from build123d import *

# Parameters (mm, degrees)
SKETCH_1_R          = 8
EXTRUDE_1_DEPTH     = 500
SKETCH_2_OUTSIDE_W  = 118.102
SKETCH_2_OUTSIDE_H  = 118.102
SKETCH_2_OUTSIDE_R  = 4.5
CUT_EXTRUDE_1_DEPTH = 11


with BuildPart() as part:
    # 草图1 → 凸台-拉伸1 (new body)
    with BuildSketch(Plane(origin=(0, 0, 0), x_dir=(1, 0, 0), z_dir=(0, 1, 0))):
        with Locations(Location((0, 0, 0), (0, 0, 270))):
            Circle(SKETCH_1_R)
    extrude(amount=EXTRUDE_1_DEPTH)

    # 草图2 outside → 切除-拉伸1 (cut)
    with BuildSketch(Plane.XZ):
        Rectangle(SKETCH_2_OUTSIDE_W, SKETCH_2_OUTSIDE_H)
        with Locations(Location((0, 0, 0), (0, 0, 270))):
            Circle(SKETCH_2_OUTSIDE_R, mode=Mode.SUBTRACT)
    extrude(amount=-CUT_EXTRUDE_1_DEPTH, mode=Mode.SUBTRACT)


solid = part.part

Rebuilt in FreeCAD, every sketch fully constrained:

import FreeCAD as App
import Part
import Sketcher
Q = App.Units.Quantity


def add_polygon(sketch, points):
    """Adds a closed chain of lines whose ends are joined by coincident constraints."""
    first, n = sketch.GeometryCount, len(points)
    for a, b in zip(points, points[1:] + points[:1]):
        sketch.addGeometry(Part.LineSegment(App.Vector(*a, 0), App.Vector(*b, 0)), False)
    for i in range(n):
        sketch.addConstraint(Sketcher.Constraint("Coincident", first + i, 2, first + (i + 1) % n, 1))

doc = App.newDocument("Part")
params = doc.addObject("Spreadsheet::Sheet", "Params")
for row, (alias, value) in enumerate([
    ("sketch1_diameter", "16 mm"),
    ("pad1_length", "500 mm"),
    ("sketch2_diameter", "9 mm"),
    ("pocket1_length", "11 mm"),
], start=1):
    params.set(f"A{row}", alias)
    params.set(f"B{row}", "=" + value)
    params.setAlias(f"B{row}", alias)

body = doc.addObject("PartDesign::Body", "Body")

sketch1 = doc.addObject("Sketcher::SketchObject", "Sketch")
body.addObject(sketch1)
sketch1.AttachmentSupport = (doc.XZ_Plane, [""])
sketch1.MapMode = "FlatFace"
sketch1.addGeometry(Part.Circle(App.Vector(0, 0, 0), App.Vector(0, 0, 1), 8), False)
sketch1.addConstraint([
    Sketcher.Constraint("Coincident", 0, 3, -1, 1),
    Sketcher.Constraint("Diameter", 0, Q("16 mm")),
])
sketch1.setExpression("Constraints[1]", "Params.sketch1_diameter")
pad1 = doc.addObject("PartDesign::Pad", "Pad")
body.addObject(pad1)
pad1.Profile = sketch1
pad1.setExpression("Length", "Params.pad1_length")
pad1.Reversed = True

sketch2 = doc.addObject("Sketcher::SketchObject", "Sketch001")
body.addObject(sketch2)
sketch2.AttachmentSupport = (doc.XZ_Plane, [""])
sketch2.MapMode = "FlatFace"
add_polygon(sketch2, [(-59.1, 59.1), (-59.1, -59.1), (59.1, -59.1), (59.1, 59.1)])
sketch2.addGeometry(Part.Circle(App.Vector(0, 0, 0), App.Vector(0, 0, 1), 4.5), False)
sketch2.addConstraint([
    Sketcher.Constraint("Vertical", 0),
    Sketcher.Constraint("Horizontal", 1),
    Sketcher.Constraint("Vertical", 2),
    Sketcher.Constraint("Horizontal", 3),
    Sketcher.Constraint("Coincident", 4, 3, -1, 1),
    Sketcher.Constraint("Symmetric", 0, 2, 2, 2, -1, 1),
    Sketcher.Constraint("Equal", 3, 0),
    Sketcher.Constraint("Diameter", 4, Q("9 mm")),
    Sketcher.Constraint("DistanceX", 1, 1, 1, 2, Q("118.102 mm")),
])
sketch2.setExpression("Constraints[11]", "Params.sketch2_diameter")
pocket1 = doc.addObject("PartDesign::Pocket", "Pocket")
body.addObject(pocket1)
pocket1.Profile = sketch2
pocket1.setExpression("Length", "Params.pocket1_length")

doc.recompute()
